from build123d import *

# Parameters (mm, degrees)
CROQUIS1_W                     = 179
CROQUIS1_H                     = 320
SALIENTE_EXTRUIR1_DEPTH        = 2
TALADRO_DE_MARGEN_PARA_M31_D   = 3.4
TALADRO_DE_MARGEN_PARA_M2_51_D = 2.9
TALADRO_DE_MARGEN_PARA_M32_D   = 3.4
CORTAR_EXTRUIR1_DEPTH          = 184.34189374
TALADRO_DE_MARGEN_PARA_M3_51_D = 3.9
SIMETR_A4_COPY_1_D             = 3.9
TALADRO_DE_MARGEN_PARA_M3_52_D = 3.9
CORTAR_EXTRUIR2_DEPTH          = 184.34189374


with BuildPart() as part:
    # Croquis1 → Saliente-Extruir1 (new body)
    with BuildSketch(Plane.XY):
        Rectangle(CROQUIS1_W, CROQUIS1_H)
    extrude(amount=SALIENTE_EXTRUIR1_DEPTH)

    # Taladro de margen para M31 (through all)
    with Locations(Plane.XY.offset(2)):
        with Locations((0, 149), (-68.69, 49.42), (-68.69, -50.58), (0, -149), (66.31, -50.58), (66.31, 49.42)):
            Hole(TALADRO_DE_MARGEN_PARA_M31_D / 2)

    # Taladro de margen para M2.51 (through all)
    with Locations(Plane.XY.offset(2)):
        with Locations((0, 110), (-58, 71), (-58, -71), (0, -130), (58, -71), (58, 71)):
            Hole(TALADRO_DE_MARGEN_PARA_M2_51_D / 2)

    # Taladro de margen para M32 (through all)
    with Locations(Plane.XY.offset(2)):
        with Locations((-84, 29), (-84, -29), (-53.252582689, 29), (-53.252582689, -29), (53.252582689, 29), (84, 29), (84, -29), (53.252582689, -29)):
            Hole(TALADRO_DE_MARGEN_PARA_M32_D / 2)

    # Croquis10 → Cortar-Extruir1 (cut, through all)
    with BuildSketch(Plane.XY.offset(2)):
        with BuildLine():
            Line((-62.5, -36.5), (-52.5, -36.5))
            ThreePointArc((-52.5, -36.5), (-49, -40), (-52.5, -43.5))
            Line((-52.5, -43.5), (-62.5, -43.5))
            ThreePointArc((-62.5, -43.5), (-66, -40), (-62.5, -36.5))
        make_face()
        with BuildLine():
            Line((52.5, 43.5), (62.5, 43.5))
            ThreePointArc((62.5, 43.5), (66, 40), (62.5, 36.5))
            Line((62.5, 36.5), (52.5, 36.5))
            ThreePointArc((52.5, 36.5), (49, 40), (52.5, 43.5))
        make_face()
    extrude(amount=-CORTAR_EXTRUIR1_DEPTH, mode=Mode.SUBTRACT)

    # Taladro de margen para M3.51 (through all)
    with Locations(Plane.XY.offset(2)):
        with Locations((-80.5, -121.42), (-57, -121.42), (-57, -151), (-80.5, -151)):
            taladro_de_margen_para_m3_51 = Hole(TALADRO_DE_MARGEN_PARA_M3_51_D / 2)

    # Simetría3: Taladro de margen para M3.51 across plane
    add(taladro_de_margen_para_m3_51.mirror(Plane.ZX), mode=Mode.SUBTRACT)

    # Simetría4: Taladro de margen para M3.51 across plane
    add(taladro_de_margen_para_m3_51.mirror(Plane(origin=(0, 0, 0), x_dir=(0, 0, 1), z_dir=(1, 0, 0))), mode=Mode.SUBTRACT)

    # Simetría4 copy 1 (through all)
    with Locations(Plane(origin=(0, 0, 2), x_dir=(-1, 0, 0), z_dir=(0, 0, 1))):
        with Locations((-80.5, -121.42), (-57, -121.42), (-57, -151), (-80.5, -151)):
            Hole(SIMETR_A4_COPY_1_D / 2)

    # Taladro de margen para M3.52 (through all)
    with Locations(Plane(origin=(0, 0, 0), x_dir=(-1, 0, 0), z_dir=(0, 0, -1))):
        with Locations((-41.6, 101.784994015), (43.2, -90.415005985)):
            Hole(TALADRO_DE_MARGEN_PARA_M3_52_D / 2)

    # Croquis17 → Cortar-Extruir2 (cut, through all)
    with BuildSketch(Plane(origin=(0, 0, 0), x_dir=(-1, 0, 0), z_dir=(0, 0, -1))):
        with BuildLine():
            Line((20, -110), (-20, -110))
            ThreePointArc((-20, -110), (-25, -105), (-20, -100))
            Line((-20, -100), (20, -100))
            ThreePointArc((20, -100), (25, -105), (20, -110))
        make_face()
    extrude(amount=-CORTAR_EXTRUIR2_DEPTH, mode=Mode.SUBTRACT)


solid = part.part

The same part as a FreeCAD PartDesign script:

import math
import FreeCAD as App
import Part
import Sketcher

V = App.Vector


def add_polygon(sketch, points):
    """Adds a closed chain of lines whose ends are joined by coincident constraints."""
    first, n = sketch.GeometryCount, len(points)
    for a, b in zip(points, points[1:] + points[:1]):
        sketch.addGeometry(Part.LineSegment(App.Vector(*a, 0), App.Vector(*b, 0)), False)
    for i in range(n):
        sketch.addConstraint(Sketcher.Constraint("Coincident", first + i, 2, first + (i + 1) % n, 1))

doc = App.newDocument("Part")
body = doc.addObject("PartDesign::Body", "Body")

# Sketch on XY plane
sketch1 = doc.addObject("Sketcher::SketchObject", "Sketch")
body.addObject(sketch1)
sketch1.AttachmentSupport = (doc.XY_Plane, [""])
sketch1.MapMode = "FlatFace"
add_polygon(sketch1, [(-89.5, 160), (-89.5, -160), (89.5, -160), (89.5, 160)])  # lines 0-3
sketch1.addConstraint([
    Sketcher.Constraint("Vertical", 0),
    Sketcher.Constraint("Horizontal", 1),
    Sketcher.Constraint("Vertical", 2),
    Sketcher.Constraint("Horizontal", 3),
    Sketcher.Constraint("Symmetric", 0, 2, 2, 2, -1, 1),
    Sketcher.Constraint("DistanceX", 1, 1, 1, 2, 179.0),
    Sketcher.Constraint("DistanceY", 0, 2, 0, 1, 320.0),
])
pad1 = doc.addObject("PartDesign::Pad", "Pad")
body.addObject(pad1)
pad1.Profile = sketch1
pad1.Length = 2

# Sketch on XY plane
sketch2 = doc.addObject("Sketcher::SketchObject", "Sketch001")
body.addObject(sketch2)
sketch2.AttachmentSupport = (doc.XY_Plane, [""])
sketch2.MapMode = "FlatFace"
sketch2.AttachmentOffset = App.Placement(V(0, 0, 2), App.Rotation())
sketch2.addGeometry([
    Part.Circle(V(0, 149, 0), V(0, 0, 1), 1.7),  # 0
    Part.Circle(V(-68.69, 49.42, 0), V(0, 0, 1), 1.7),  # 1
    Part.Circle(V(-68.69, -50.58, 0), V(0, 0, 1), 1.7),  # 2
    Part.Circle(V(0, -149, 0), V(0, 0, 1), 1.7),  # 3
    Part.Circle(V(66.31, -50.58, 0), V(0, 0, 1), 1.7),  # 4
    Part.Circle(V(66.31, 49.42, 0), V(0, 0, 1), 1.7),  # 5
], False)
sketch2.addConstraint([
    Sketcher.Constraint("Equal", 0, 1),
    Sketcher.Constraint("Equal", 1, 2),
    Sketcher.Constraint("Equal", 2, 3),
    Sketcher.Constraint("Equal", 3, 4),
    Sketcher.Constraint("Equal", 4, 5),
    Sketcher.Constraint("Symmetric", 0, 3, 3, 3, -1, 1),
    Sketcher.Constraint("PointOnObject", 0, 3, -2),
    Sketcher.Constraint("Horizontal", 2, 3, 4, 3),
    Sketcher.Constraint("Horizontal", 1, 3, 5, 3),
    Sketcher.Constraint("Vertical", 1, 3, 2, 3),
    Sketcher.Constraint("Vertical", 4, 3, 5, 3),
    Sketcher.Constraint("Diameter", 0, 3.4),
    Sketcher.Constraint("DistanceY", -1, 1, 0, 3, 149.0),
    Sketcher.Constraint("DistanceY", 2, 3, 1, 3, 100.0),
    Sketcher.Constraint("DistanceX", 2, 3, 4, 3, 135.0),
    Sketcher.Constraint("DistanceX", 1, 3, -1, 1, 68.69),
    Sketcher.Constraint("DistanceY", -1, 1, 1, 3, 49.42),
])
doc.recompute()
hole = doc.addObject("PartDesign::Hole", "Hole")
body.addObject(hole)
hole.Profile = sketch2
hole.ThreadType = "None"
hole.Diameter = 3.4
hole.DepthType = "ThroughAll"

# Sketch on XY plane
sketch3 = doc.addObject("Sketcher::SketchObject", "Sketch002")
body.addObject(sketch3)
sketch3.AttachmentSupport = (doc.XY_Plane, [""])
sketch3.MapMode = "FlatFace"
sketch3.AttachmentOffset = App.Placement(V(0, 0, 2), App.Rotation())
sketch3.addGeometry([
    Part.Circle(V(0, 110, 0), V(0, 0, 1), 1.45),  # 0
    Part.Circle(V(-58, 71, 0), V(0, 0, 1), 1.45),  # 1
    Part.Circle(V(-58, -71, 0), V(0, 0, 1), 1.45),  # 2
    Part.Circle(V(0, -130, 0), V(0, 0, 1), 1.45),  # 3
    Part.Circle(V(58, -71, 0), V(0, 0, 1), 1.45),  # 4
    Part.Circle(V(58, 71, 0), V(0, 0, 1), 1.45),  # 5
], False)
sketch3.addConstraint([
    Sketcher.Constraint("Equal", 0, 1),
    Sketcher.Constraint("Equal", 1, 2),
    Sketcher.Constraint("Equal", 2, 3),
    Sketcher.Constraint("Equal", 3, 4),
    Sketcher.Constraint("Equal", 4, 5),
    Sketcher.Constraint("Symmetric", 1, 3, 4, 3, -1, 1),
    Sketcher.Constraint("Symmetric", 2, 3, 5, 3, -1, 1),
    Sketcher.Constraint("Symmetric", 2, 3, 4, 3, -2),
    Sketcher.Constraint("PointOnObject", 0, 3, -2),
    Sketcher.Constraint("PointOnObject", 3, 3, -2),
    Sketcher.Constraint("Diameter", 0, 2.9),
    Sketcher.Constraint("DistanceY", -1, 1, 0, 3, 110.0),
    Sketcher.Constraint("DistanceX", 1, 3, -1, 1, 58.0),
    Sketcher.Constraint("DistanceY", -1, 1, 1, 3, 71.0),
    Sketcher.Constraint("DistanceY", 3, 3, -1, 1, 130.0),
])
doc.recompute()
hole2 = doc.addObject("PartDesign::Hole", "Hole001")
body.addObject(hole2)
hole2.Profile = sketch3
hole2.ThreadType = "None"
hole2.Diameter = 2.9
hole2.DepthType = "ThroughAll"

# Sketch on XY plane
sketch4 = doc.addObject("Sketcher::SketchObject", "Sketch003")
body.addObject(sketch4)
sketch4.AttachmentSupport = (doc.XY_Plane, [""])
sketch4.MapMode = "FlatFace"
sketch4.AttachmentOffset = App.Placement(V(0, 0, 2), App.Rotation())
sketch4.addGeometry([
    Part.Circle(V(-84, 29, 0), V(0, 0, 1), 1.7),  # 0
    Part.Circle(V(-84, -29, 0), V(0, 0, 1), 1.7),  # 1
    Part.Circle(V(-53.252583, 29, 0), V(0, 0, 1), 1.7),  # 2
    Part.Circle(V(-53.252583, -29, 0), V(0, 0, 1), 1.7),  # 3
    Part.Circle(V(53.252583, 29, 0), V(0, 0, 1), 1.7),  # 4
    Part.Circle(V(84, 29, 0), V(0, 0, 1), 1.7),  # 5
    Part.Circle(V(84, -29, 0), V(0, 0, 1), 1.7),  # 6
    Part.Circle(V(53.252583, -29, 0), V(0, 0, 1), 1.7),  # 7
], False)
sketch4.addConstraint([
    Sketcher.Constraint("Equal", 0, 1),
    Sketcher.Constraint("Equal", 1, 2),
    Sketcher.Constraint("Equal", 2, 3),
    Sketcher.Constraint("Equal", 3, 4),
    Sketcher.Constraint("Equal", 4, 5),
    Sketcher.Constraint("Equal", 5, 6),
    Sketcher.Constraint("Equal", 6, 7),
    Sketcher.Constraint("Symmetric", 3, 3, 4, 3, -1, 1),
    Sketcher.Constraint("Symmetric", 1, 3, 5, 3, -1, 1),
    Sketcher.Constraint("Symmetric", 0, 3, 6, 3, -1, 1),
    Sketcher.Constraint("Symmetric", 2, 3, 7, 3, -1, 1),
    Sketcher.Constraint("Symmetric", 2, 3, 4, 3, -2),
    Sketcher.Constraint("Symmetric", 0, 3, 5, 3, -2),
    Sketcher.Constraint("Horizontal", 0, 3, 2, 3),
    Sketcher.Constraint("Diameter", 0, 3.4),
    Sketcher.Constraint("DistanceX", 0, 3, -1, 1, 84.0),
    Sketcher.Constraint("DistanceY", -1, 1, 0, 3, 29.0),
    Sketcher.Constraint("DistanceX", 2, 3, -1, 1, 53.252583),
])
doc.recompute()
hole3 = doc.addObject("PartDesign::Hole", "Hole002")
body.addObject(hole3)
hole3.Profile = sketch4
hole3.ThreadType = "None"
hole3.Diameter = 3.4
hole3.DepthType = "ThroughAll"

# Sketch on XY plane
sketch5 = doc.addObject("Sketcher::SketchObject", "Sketch004")
body.addObject(sketch5)
sketch5.AttachmentSupport = (doc.XY_Plane, [""])
sketch5.MapMode = "FlatFace"
sketch5.AttachmentOffset = App.Placement(V(0, 0, 2), App.Rotation())
sketch5.addGeometry([
    Part.LineSegment(V(-52.5, -36.5, 0), V(-62.5, -36.5, 0)),  # 0
    Part.ArcOfCircle(Part.Circle(V(-62.5, -40, 0), V(0, 0, 1), 3.5), math.radians(90), math.radians(270)),  # 1
    Part.LineSegment(V(-62.5, -43.5, 0), V(-52.5, -43.5, 0)),  # 2
    Part.ArcOfCircle(Part.Circle(V(-52.5, -40, 0), V(0, 0, 1), 3.5), math.radians(-90), math.radians(90)),  # 3
    Part.LineSegment(V(62.5, 43.5, 0), V(52.5, 43.5, 0)),  # 4
    Part.ArcOfCircle(Part.Circle(V(52.5, 40, 0), V(0, 0, 1), 3.5), math.radians(90), math.radians(270)),  # 5
    Part.LineSegment(V(52.5, 36.5, 0), V(62.5, 36.5, 0)),  # 6
    Part.ArcOfCircle(Part.Circle(V(62.5, 40, 0), V(0, 0, 1), 3.5), math.radians(-90), math.radians(90)),  # 7
], False)
sketch5.addConstraint([
    Sketcher.Constraint("Tangent", 0, 2, 1, 1),
    Sketcher.Constraint("Tangent", 1, 2, 2, 1),
    Sketcher.Constraint("Tangent", 2, 2, 3, 1),
    Sketcher.Constraint("Tangent", 3, 2, 0, 1),
    Sketcher.Constraint("Tangent", 4, 2, 5, 1),
    Sketcher.Constraint("Tangent", 5, 2, 6, 1),
    Sketcher.Constraint("Tangent", 6, 2, 7, 1),
    Sketcher.Constraint("Tangent", 7, 2, 4, 1),
    Sketcher.Constraint("Horizontal", 0),
    Sketcher.Constraint("Horizontal", 2),
    Sketcher.Constraint("Horizontal", 4),
    Sketcher.Constraint("Horizontal", 6),
    Sketcher.Constraint("Equal", 3, 5),
    Sketcher.Constraint("Symmetric", 3, 3, 5, 3, -1, 1),
    Sketcher.Constraint("Equal", 2, 4),
    Sketcher.Constraint("Radius", 1, 3.5),
    Sketcher.Constraint("DistanceX", 0, 2, 0, 1, 10.0),
    Sketcher.Constraint("DistanceY", 1, 3, -1, 1, 40.0),
    Sketcher.Constraint("DistanceX", 3, 3, 5, 3, 105.0),
])
pocket1 = doc.addObject("PartDesign::Pocket", "Pocket")
body.addObject(pocket1)
pocket1.Profile = sketch5
pocket1.Type = "ThroughAll"

# Sketch on XY plane
sketch6 = doc.addObject("Sketcher::SketchObject", "Sketch005")
body.addObject(sketch6)
sketch6.AttachmentSupport = (doc.XY_Plane, [""])
sketch6.MapMode = "FlatFace"
sketch6.AttachmentOffset = App.Placement(V(0, 0, 2), App.Rotation())
sketch6.addGeometry([
    Part.Circle(V(-80.5, -121.42, 0), V(0, 0, 1), 1.95),
    Part.Circle(V(-57, -121.42, 0), V(0, 0, 1), 1.95),
    Part.Circle(V(-57, -151, 0), V(0, 0, 1), 1.95),
    Part.Circle(V(-80.5, -151, 0), V(0, 0, 1), 1.95),
], False)
sketch6.addConstraint([
    Sketcher.Constraint("Equal", 0, 1),
    Sketcher.Constraint("Equal", 1, 2),
    Sketcher.Constraint("Equal", 2, 3),
    Sketcher.Constraint("Horizontal", 0, 3, 1, 3),
    Sketcher.Constraint("Horizontal", 2, 3, 3, 3),
    Sketcher.Constraint("Vertical", 1, 3, 2, 3),
    Sketcher.Constraint("Vertical", 0, 3, 3, 3),
    Sketcher.Constraint("Diameter", 0, 3.9),
    Sketcher.Constraint("DistanceX", 1, 3, -1, 1, 57.0),
    Sketcher.Constraint("DistanceY", 2, 3, -1, 1, 151.0),
    Sketcher.Constraint("DistanceX", 0, 3, -1, 1, 80.5),
    Sketcher.Constraint("DistanceY", 0, 3, -1, 1, 121.42),
])
doc.recompute()
hole4 = doc.addObject("PartDesign::Hole", "Hole003")
body.addObject(hole4)
hole4.Profile = sketch6
hole4.ThreadType = "None"
hole4.Diameter = 3.9
hole4.DepthType = "ThroughAll"
doc.recompute()

mirrored = doc.addObject("PartDesign::Mirrored", "Mirrored")
body.addObject(mirrored)
mirrored.Originals = [hole4]
mirrored.MirrorPlane = (doc.XZ_Plane, [""])
body.Tip = mirrored
doc.recompute()

mirrored2 = doc.addObject("PartDesign::Mirrored", "Mirrored001")
body.addObject(mirrored2)
mirrored2.Originals = [hole4]
mirrored2.MirrorPlane = (doc.YZ_Plane, [""])
body.Tip = mirrored2

# Sketch on XY plane
sketch7 = doc.addObject("Sketcher::SketchObject", "Sketch006")
body.addObject(sketch7)
sketch7.AttachmentSupport = (doc.XY_Plane, [""])
sketch7.MapMode = "FlatFace"
sketch7.AttachmentOffset = App.Placement(V(0, 0, 2), App.Rotation())
sketch7.addGeometry([
    Part.Circle(V(80.5, 121.42, 0), V(0, 0, 1), 1.95),
    Part.Circle(V(57, 121.42, 0), V(0, 0, 1), 1.95),
    Part.Circle(V(57, 151, 0), V(0, 0, 1), 1.95),
    Part.Circle(V(80.5, 151, 0), V(0, 0, 1), 1.95),
], False)
sketch7.addConstraint([
    Sketcher.Constraint("Equal", 0, 1),
    Sketcher.Constraint("Equal", 1, 2),
    Sketcher.Constraint("Equal", 2, 3),
    Sketcher.Constraint("Horizontal", 0, 3, 1, 3),
    Sketcher.Constraint("Horizontal", 2, 3, 3, 3),
    Sketcher.Constraint("Vertical", 1, 3, 2, 3),
    Sketcher.Constraint("Vertical", 0, 3, 3, 3),
    Sketcher.Constraint("Diameter", 0, 3.9),
    Sketcher.Constraint("DistanceX", -1, 1, 1, 3, 57.0),
    Sketcher.Constraint("DistanceY", -1, 1, 2, 3, 151.0),
    Sketcher.Constraint("DistanceX", -1, 1, 0, 3, 80.5),
    Sketcher.Constraint("DistanceY", -1, 1, 0, 3, 121.42),
])
doc.recompute()
hole5 = doc.addObject("PartDesign::Hole", "Hole004")
body.addObject(hole5)
hole5.Profile = sketch7
hole5.ThreadType = "None"
hole5.Diameter = 3.9
hole5.DepthType = "ThroughAll"

# Sketch on XY plane
sketch8 = doc.addObject("Sketcher::SketchObject", "Sketch007")
body.addObject(sketch8)
sketch8.AttachmentSupport = (doc.XY_Plane, [""])
sketch8.MapMode = "FlatFace"
sketch8.addGeometry([
    Part.Circle(V(41.6, 101.784994, 0), V(0, 0, 1), 1.95),
    Part.Circle(V(-43.2, -90.415006, 0), V(0, 0, 1), 1.95),
], False)
sketch8.addConstraint([
    Sketcher.Constraint("Equal", 0, 1),
    Sketcher.Constraint("Diameter", 0, 3.9),
    Sketcher.Constraint("DistanceX", -1, 1, 0, 3, 41.6),
    Sketcher.Constraint("DistanceX", 1, 3, -1, 1, 43.2),
    Sketcher.Constraint("DistanceY", 1, 3, 0, 3, 192.2),
    Sketcher.Constraint("DistanceY", -1, 1, 0, 3, 101.784994),
])
doc.recompute()
hole6 = doc.addObject("PartDesign::Hole", "Hole005")
body.addObject(hole6)
hole6.Profile = sketch8
hole6.ThreadType = "None"
hole6.Diameter = 3.9
hole6.DepthType = "ThroughAll"
hole6.Reversed = True

# Sketch on XY plane
sketch9 = doc.addObject("Sketcher::SketchObject", "Sketch008")
body.addObject(sketch9)
sketch9.AttachmentSupport = (doc.XY_Plane, [""])
sketch9.MapMode = "FlatFace"
sketch9.addGeometry([
    Part.LineSegment(V(20, -110, 0), V(-20, -110, 0)),
    Part.ArcOfCircle(Part.Circle(V(-20, -105, 0), V(0, 0, 1), 5), math.radians(90), math.radians(270)),
    Part.LineSegment(V(-20, -100, 0), V(20, -100, 0)),
    Part.ArcOfCircle(Part.Circle(V(20, -105, 0), V(0, 0, 1), 5), math.radians(-90), math.radians(90)),
], False)
sketch9.addConstraint([
    Sketcher.Constraint("Tangent", 0, 2, 1, 2),
    Sketcher.Constraint("Tangent", 1, 1, 2, 1),
    Sketcher.Constraint("Tangent", 2, 2, 3, 2),
    Sketcher.Constraint("Tangent", 3, 1, 0, 1),
    Sketcher.Constraint("Horizontal", 0),
    Sketcher.Constraint("Horizontal", 2),
    Sketcher.Constraint("Radius", 1, 5.0),
    Sketcher.Constraint("DistanceX", 0, 2, 0, 1, 40.0),
    Sketcher.Constraint("DistanceX", 1, 3, -1, 1, 20.0),
    Sketcher.Constraint("DistanceY", 1, 3, -1, 1, 105.0),
])
pocket2 = doc.addObject("PartDesign::Pocket", "Pocket001")
body.addObject(pocket2)
pocket2.Profile = sketch9
pocket2.Type = "ThroughAll"
pocket2.Reversed = True

doc.recompute()
